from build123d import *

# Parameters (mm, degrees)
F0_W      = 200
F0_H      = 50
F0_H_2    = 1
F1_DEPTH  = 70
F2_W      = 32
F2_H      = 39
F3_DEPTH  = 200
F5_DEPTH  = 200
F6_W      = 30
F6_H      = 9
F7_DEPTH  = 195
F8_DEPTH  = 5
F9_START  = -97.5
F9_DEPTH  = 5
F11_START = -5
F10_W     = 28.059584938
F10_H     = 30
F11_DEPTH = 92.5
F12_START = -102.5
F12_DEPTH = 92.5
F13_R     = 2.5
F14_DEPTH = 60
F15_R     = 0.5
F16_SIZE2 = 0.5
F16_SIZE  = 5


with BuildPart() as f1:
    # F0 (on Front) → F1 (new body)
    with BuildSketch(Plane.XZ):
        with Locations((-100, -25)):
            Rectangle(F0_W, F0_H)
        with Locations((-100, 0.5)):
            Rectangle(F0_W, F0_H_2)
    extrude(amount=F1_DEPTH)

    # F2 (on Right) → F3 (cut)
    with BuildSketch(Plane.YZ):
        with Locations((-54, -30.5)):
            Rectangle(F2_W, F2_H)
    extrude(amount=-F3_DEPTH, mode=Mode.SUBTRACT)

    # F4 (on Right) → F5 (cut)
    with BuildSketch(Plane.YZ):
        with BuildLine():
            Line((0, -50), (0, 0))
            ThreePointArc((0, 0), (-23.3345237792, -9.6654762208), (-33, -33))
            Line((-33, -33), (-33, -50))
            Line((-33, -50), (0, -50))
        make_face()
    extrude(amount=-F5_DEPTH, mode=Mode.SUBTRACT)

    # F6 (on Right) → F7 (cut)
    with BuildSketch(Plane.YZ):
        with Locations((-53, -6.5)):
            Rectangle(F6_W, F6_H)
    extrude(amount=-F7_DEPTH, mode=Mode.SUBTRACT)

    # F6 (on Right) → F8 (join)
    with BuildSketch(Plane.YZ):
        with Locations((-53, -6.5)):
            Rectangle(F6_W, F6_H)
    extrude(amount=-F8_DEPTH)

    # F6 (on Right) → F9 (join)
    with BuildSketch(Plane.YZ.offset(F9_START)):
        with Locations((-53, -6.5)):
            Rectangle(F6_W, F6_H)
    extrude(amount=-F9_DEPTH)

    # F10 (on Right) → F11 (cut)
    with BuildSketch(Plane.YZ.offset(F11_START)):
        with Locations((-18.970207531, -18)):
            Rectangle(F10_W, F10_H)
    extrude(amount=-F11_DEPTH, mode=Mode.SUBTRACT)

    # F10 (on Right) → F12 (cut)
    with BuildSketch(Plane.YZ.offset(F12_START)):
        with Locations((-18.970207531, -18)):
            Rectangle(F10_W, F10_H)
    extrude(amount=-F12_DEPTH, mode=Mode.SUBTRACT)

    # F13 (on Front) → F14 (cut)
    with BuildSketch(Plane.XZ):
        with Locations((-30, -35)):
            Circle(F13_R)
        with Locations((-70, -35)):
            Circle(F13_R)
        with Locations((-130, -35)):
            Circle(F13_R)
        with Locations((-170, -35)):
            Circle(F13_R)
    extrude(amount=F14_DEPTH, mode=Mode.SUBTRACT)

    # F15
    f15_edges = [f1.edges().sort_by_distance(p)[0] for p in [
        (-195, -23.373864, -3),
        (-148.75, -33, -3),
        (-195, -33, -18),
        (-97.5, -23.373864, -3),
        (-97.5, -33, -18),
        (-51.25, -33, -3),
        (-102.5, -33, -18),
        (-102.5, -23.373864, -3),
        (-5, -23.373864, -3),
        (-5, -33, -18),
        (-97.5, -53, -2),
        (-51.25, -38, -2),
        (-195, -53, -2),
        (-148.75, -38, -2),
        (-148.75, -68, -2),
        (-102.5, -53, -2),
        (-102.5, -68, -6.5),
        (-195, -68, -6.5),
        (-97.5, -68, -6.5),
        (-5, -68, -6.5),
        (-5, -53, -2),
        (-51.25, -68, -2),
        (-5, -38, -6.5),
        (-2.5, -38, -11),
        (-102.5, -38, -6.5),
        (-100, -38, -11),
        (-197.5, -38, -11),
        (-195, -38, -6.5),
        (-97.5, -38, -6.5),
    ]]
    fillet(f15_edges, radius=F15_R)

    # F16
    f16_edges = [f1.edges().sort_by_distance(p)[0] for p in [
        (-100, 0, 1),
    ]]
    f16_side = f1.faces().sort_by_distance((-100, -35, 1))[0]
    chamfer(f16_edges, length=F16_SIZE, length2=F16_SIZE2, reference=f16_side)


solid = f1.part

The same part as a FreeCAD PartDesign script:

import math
import FreeCAD as App
import Part
import Sketcher
from FreeCAD import Vector


def edges_at(feature, points):
    """Names of the edges that pass closest to the given points."""
    edges = feature.Shape.Edges
    near = lambda p: min(range(len(edges)), key=lambda i: edges[i].distToShape(Part.Vertex(*p))[0])
    return sorted({f"Edge{near(p) + 1}" for p in points})

doc = App.newDocument("Part")
body = doc.addObject("PartDesign::Body", "Body")

sketch1 = body.newObject("Sketcher::SketchObject", "Sketch")
sketch1.AttachmentSupport = (doc.getObject("XZ_Plane"), [""])
sketch1.MapMode = "FlatFace"
sketch1.addGeometry(Part.LineSegment(Vector(-200, -50, 0), Vector(0, -50, 0)), False)
sketch1.addGeometry(Part.LineSegment(Vector(0, -50, 0), Vector(0, 1, 0)), False)
sketch1.addGeometry(Part.LineSegment(Vector(0, 1, 0), Vector(-200, 1, 0)), False)
sketch1.addGeometry(Part.LineSegment(Vector(-200, 1, 0), Vector(-200, -50, 0)), False)
sketch1.addConstraint(Sketcher.Constraint("Coincident", 0, 2, 1, 1))
sketch1.addConstraint(Sketcher.Constraint("Coincident", 1, 2, 2, 1))
sketch1.addConstraint(Sketcher.Constraint("Coincident", 2, 2, 3, 1))
sketch1.addConstraint(Sketcher.Constraint("Coincident", 3, 2, 0, 1))
sketch1.addConstraint(Sketcher.Constraint("Horizontal", 0))
sketch1.addConstraint(Sketcher.Constraint("Vertical", 1))
sketch1.addConstraint(Sketcher.Constraint("Horizontal", 2))
sketch1.addConstraint(Sketcher.Constraint("Vertical", 3))
sketch1.addConstraint(Sketcher.Constraint("PointOnObject", 0, 2, -2))
sketch1.addConstraint(Sketcher.Constraint("DistanceX", 0, 1, 0, 2, 200.0))
sketch1.addConstraint(Sketcher.Constraint("DistanceY", 1, 1, 1, 2, 51.0))
sketch1.addConstraint(Sketcher.Constraint("DistanceY", 0, 2, -1, 1, 50.0))
pad1 = body.newObject("PartDesign::Pad", "Pad")
pad1.Profile = sketch1
pad1.Length = 70

sketch2 = body.newObject("Sketcher::SketchObject", "Sketch001")
sketch2.AttachmentSupport = (doc.getObject("YZ_Plane"), [""])
sketch2.MapMode = "FlatFace"
sketch2.addGeometry(Part.LineSegment(Vector(-70, -11, 0), Vector(-70, -50, 0)), False)
sketch2.addGeometry(Part.LineSegment(Vector(-70, -50, 0), Vector(-38, -50, 0)), False)
sketch2.addGeometry(Part.LineSegment(Vector(-38, -50, 0), Vector(-38, -11, 0)), False)
sketch2.addGeometry(Part.LineSegment(Vector(-38, -11, 0), Vector(-70, -11, 0)), False)
sketch2.addConstraint(Sketcher.Constraint("Coincident", 0, 2, 1, 1))
sketch2.addConstraint(Sketcher.Constraint("Coincident", 1, 2, 2, 1))
sketch2.addConstraint(Sketcher.Constraint("Coincident", 2, 2, 3, 1))
sketch2.addConstraint(Sketcher.Constraint("Coincident", 3, 2, 0, 1))
sketch2.addConstraint(Sketcher.Constraint("Vertical", 0))
sketch2.addConstraint(Sketcher.Constraint("Horizontal", 1))
sketch2.addConstraint(Sketcher.Constraint("Vertical", 2))
sketch2.addConstraint(Sketcher.Constraint("Horizontal", 3))
sketch2.addConstraint(Sketcher.Constraint("DistanceX", 1, 1, 1, 2, 32.0))
sketch2.addConstraint(Sketcher.Constraint("DistanceY", 0, 2, 0, 1, 39.0))
sketch2.addConstraint(Sketcher.Constraint("DistanceX", 0, 2, -1, 1, 70.0))
sketch2.addConstraint(Sketcher.Constraint("DistanceY", 0, 2, -1, 1, 50.0))
pocket1 = body.newObject("PartDesign::Pocket", "Pocket")
pocket1.Profile = sketch2
pocket1.Length = 200

sketch3 = body.newObject("Sketcher::SketchObject", "Sketch002")
sketch3.AttachmentSupport = (doc.getObject("YZ_Plane"), [""])
sketch3.MapMode = "FlatFace"
sketch3.addGeometry(Part.LineSegment(Vector(0, -50, 0), Vector(0, 0, 0)), False)
sketch3.addGeometry(Part.ArcOfCircle(Part.Circle(Vector(0, -33, 0), Vector(0, 0, 1), 33), math.radians(90), math.radians(180)), False)
sketch3.addGeometry(Part.LineSegment(Vector(-33, -33, 0), Vector(-33, -50, 0)), False)
sketch3.addGeometry(Part.LineSegment(Vector(-33, -50, 0), Vector(0, -50, 0)), False)
sketch3.addConstraint(Sketcher.Constraint("Coincident", 0, 2, 1, 1))
sketch3.addConstraint(Sketcher.Constraint("Tangent", 1, 2, 2, 1))
sketch3.addConstraint(Sketcher.Constraint("Coincident", 2, 2, 3, 1))
sketch3.addConstraint(Sketcher.Constraint("Coincident", 3, 2, 0, 1))
sketch3.addConstraint(Sketcher.Constraint("Vertical", 0))
sketch3.addConstraint(Sketcher.Constraint("Vertical", 2))
sketch3.addConstraint(Sketcher.Constraint("Horizontal", 3))
sketch3.addConstraint(Sketcher.Constraint("Coincident", 0, 2, -1, 1))
sketch3.addConstraint(Sketcher.Constraint("PointOnObject", 1, 3, -2))
sketch3.addConstraint(Sketcher.Constraint("Radius", 1, 33.0))
sketch3.addConstraint(Sketcher.Constraint("DistanceY", 0, 1, 0, 2, 50.0))
pocket2 = body.newObject("PartDesign::Pocket", "Pocket001")
pocket2.Profile = sketch3
pocket2.Length = 200

sketch4 = body.newObject("Sketcher::SketchObject", "Sketch003")
sketch4.AttachmentSupport = (doc.getObject("YZ_Plane"), [""])
sketch4.MapMode = "FlatFace"
sketch4.addGeometry(Part.LineSegment(Vector(-68, -2, 0), Vector(-68, -11, 0)), False)
sketch4.addGeometry(Part.LineSegment(Vector(-68, -11, 0), Vector(-38, -11, 0)), False)
sketch4.addGeometry(Part.LineSegment(Vector(-38, -11, 0), Vector(-38, -2, 0)), False)
sketch4.addGeometry(Part.LineSegment(Vector(-38, -2, 0), Vector(-68, -2, 0)), False)
sketch4.addConstraint(Sketcher.Constraint("Coincident", 0, 2, 1, 1))
sketch4.addConstraint(Sketcher.Constraint("Coincident", 1, 2, 2, 1))
sketch4.addConstraint(Sketcher.Constraint("Coincident", 2, 2, 3, 1))
sketch4.addConstraint(Sketcher.Constraint("Coincident", 3, 2, 0, 1))
sketch4.addConstraint(Sketcher.Constraint("Vertical", 0))
sketch4.addConstraint(Sketcher.Constraint("Horizontal", 1))
sketch4.addConstraint(Sketcher.Constraint("Vertical", 2))
sketch4.addConstraint(Sketcher.Constraint("Horizontal", 3))
sketch4.addConstraint(Sketcher.Constraint("DistanceX", 1, 1, 1, 2, 30.0))
sketch4.addConstraint(Sketcher.Constraint("DistanceY", 0, 2, 0, 1, 9.0))
sketch4.addConstraint(Sketcher.Constraint("DistanceX", 0, 2, -1, 1, 68.0))
sketch4.addConstraint(Sketcher.Constraint("DistanceY", 0, 2, -1, 1, 11.0))
pocket3 = body.newObject("PartDesign::Pocket", "Pocket002")
pocket3.Profile = sketch4
pocket3.Length = 195

sketch5 = body.newObject("Sketcher::SketchObject", "Sketch004")
sketch5.AttachmentSupport = (doc.getObject("YZ_Plane"), [""])
sketch5.MapMode = "FlatFace"
sketch5.addGeometry(Part.LineSegment(Vector(-68, -2, 0), Vector(-68, -11, 0)), False)
sketch5.addGeometry(Part.LineSegment(Vector(-68, -11, 0), Vector(-38, -11, 0)), False)
sketch5.addGeometry(Part.LineSegment(Vector(-38, -11, 0), Vector(-38, -2, 0)), False)
sketch5.addGeometry(Part.LineSegment(Vector(-38, -2, 0), Vector(-68, -2, 0)), False)
sketch5.addConstraint(Sketcher.Constraint("Coincident", 0, 2, 1, 1))
sketch5.addConstraint(Sketcher.Constraint("Coincident", 1, 2, 2, 1))
sketch5.addConstraint(Sketcher.Constraint("Coincident", 2, 2, 3, 1))
sketch5.addConstraint(Sketcher.Constraint("Coincident", 3, 2, 0, 1))
sketch5.addConstraint(Sketcher.Constraint("Vertical", 0))
sketch5.addConstraint(Sketcher.Constraint("Horizontal", 1))
sketch5.addConstraint(Sketcher.Constraint("Vertical", 2))
sketch5.addConstraint(Sketcher.Constraint("Horizontal", 3))
sketch5.addConstraint(Sketcher.Constraint("DistanceX", 1, 1, 1, 2, 30.0))
sketch5.addConstraint(Sketcher.Constraint("DistanceY", 0, 2, 0, 1, 9.0))
sketch5.addConstraint(Sketcher.Constraint("DistanceX", 0, 2, -1, 1, 68.0))
sketch5.addConstraint(Sketcher.Constraint("DistanceY", 0, 2, -1, 1, 11.0))
pad2 = body.newObject("PartDesign::Pad", "Pad001")
pad2.Profile = sketch5
pad2.Length = 5
pad2.Reversed = True

sketch6 = body.newObject("Sketcher::SketchObject", "Sketch005")
sketch6.AttachmentSupport = (doc.getObject("YZ_Plane"), [""])
sketch6.MapMode = "FlatFace"
sketch6.AttachmentOffset = App.Placement(Vector(0, 0, -97.5), App.Rotation())
sketch6.addGeometry(Part.LineSegment(Vector(-68, -2, 0), Vector(-68, -11, 0)), False)
sketch6.addGeometry(Part.LineSegment(Vector(-68, -11, 0), Vector(-38, -11, 0)), False)
sketch6.addGeometry(Part.LineSegment(Vector(-38, -11, 0), Vector(-38, -2, 0)), False)
sketch6.addGeometry(Part.LineSegment(Vector(-38, -2, 0), Vector(-68, -2, 0)), False)
sketch6.addConstraint(Sketcher.Constraint("Coincident", 0, 2, 1, 1))
sketch6.addConstraint(Sketcher.Constraint("Coincident", 1, 2, 2, 1))
sketch6.addConstraint(Sketcher.Constraint("Coincident", 2, 2, 3, 1))
sketch6.addConstraint(Sketcher.Constraint("Coincident", 3, 2, 0, 1))
sketch6.addConstraint(Sketcher.Constraint("Vertical", 0))
sketch6.addConstraint(Sketcher.Constraint("Horizontal", 1))
sketch6.addConstraint(Sketcher.Constraint("Vertical", 2))
sketch6.addConstraint(Sketcher.Constraint("Horizontal", 3))
sketch6.addConstraint(Sketcher.Constraint("DistanceX", 1, 1, 1, 2, 30.0))
sketch6.addConstraint(Sketcher.Constraint("DistanceY", 0, 2, 0, 1, 9.0))
sketch6.addConstraint(Sketcher.Constraint("DistanceX", 0, 2, -1, 1, 68.0))
sketch6.addConstraint(Sketcher.Constraint("DistanceY", 0, 2, -1, 1, 11.0))
pad3 = body.newObject("PartDesign::Pad", "Pad002")
pad3.Profile = sketch6
pad3.Length = 5
pad3.Reversed = True

sketch7 = body.newObject("Sketcher::SketchObject", "Sketch006")
sketch7.AttachmentSupport = (doc.getObject("YZ_Plane"), [""])
sketch7.MapMode = "FlatFace"
sketch7.AttachmentOffset = App.Placement(Vector(0, 0, -5), App.Rotation())
sketch7.addGeometry(Part.LineSegment(Vector(-33, -3, 0), Vector(-33, -33, 0)), False)
sketch7.addGeometry(Part.LineSegment(Vector(-33, -33, 0), Vector(-5, -33, 0)), False)
sketch7.addGeometry(Part.LineSegment(Vector(-5, -33, 0), Vector(-5, -3, 0)), False)
sketch7.addGeometry(Part.LineSegment(Vector(-5, -3, 0), Vector(-33, -3, 0)), False)
sketch7.addConstraint(Sketcher.Constraint("Coincident", 0, 2, 1, 1))
sketch7.addConstraint(Sketcher.Constraint("Coincident", 1, 2, 2, 1))
sketch7.addConstraint(Sketcher.Constraint("Coincident", 2, 2, 3, 1))
sketch7.addConstraint(Sketcher.Constraint("Coincident", 3, 2, 0, 1))
sketch7.addConstraint(Sketcher.Constraint("Vertical", 0))
sketch7.addConstraint(Sketcher.Constraint("Horizontal", 1))
sketch7.addConstraint(Sketcher.Constraint("Vertical", 2))
sketch7.addConstraint(Sketcher.Constraint("Horizontal", 3))
sketch7.addConstraint(Sketcher.Constraint("DistanceY", 0, 2, 0, 1, 30.0))
sketch7.addConstraint(Sketcher.Constraint("DistanceX", 0, 2, -1, 1, 33.0))
sketch7.addConstraint(Sketcher.Constraint("DistanceY", 0, 2, -1, 1, 33.0))
sketch7.addConstraint(Sketcher.Constraint("DistanceX", 1, 1, 1, 2, 28.059585))
pocket4 = body.newObject("PartDesign::Pocket", "Pocket003")
pocket4.Profile = sketch7
pocket4.Length = 92.5

sketch8 = body.newObject("Sketcher::SketchObject", "Sketch007")
sketch8.AttachmentSupport = (doc.getObject("YZ_Plane"), [""])
sketch8.MapMode = "FlatFace"
sketch8.AttachmentOffset = App.Placement(Vector(0, 0, -102.5), App.Rotation())
sketch8.addGeometry(Part.LineSegment(Vector(-33, -3, 0), Vector(-33, -33, 0)), False)
sketch8.addGeometry(Part.LineSegment(Vector(-33, -33, 0), Vector(-5, -33, 0)), False)
sketch8.addGeometry(Part.LineSegment(Vector(-5, -33, 0), Vector(-5, -3, 0)), False)
sketch8.addGeometry(Part.LineSegment(Vector(-5, -3, 0), Vector(-33, -3, 0)), False)
sketch8.addConstraint(Sketcher.Constraint("Coincident", 0, 2, 1, 1))
sketch8.addConstraint(Sketcher.Constraint("Coincident", 1, 2, 2, 1))
sketch8.addConstraint(Sketcher.Constraint("Coincident", 2, 2, 3, 1))
sketch8.addConstraint(Sketcher.Constraint("Coincident", 3, 2, 0, 1))
sketch8.addConstraint(Sketcher.Constraint("Vertical", 0))
sketch8.addConstraint(Sketcher.Constraint("Horizontal", 1))
sketch8.addConstraint(Sketcher.Constraint("Vertical", 2))
sketch8.addConstraint(Sketcher.Constraint("Horizontal", 3))
sketch8.addConstraint(Sketcher.Constraint("DistanceY", 0, 2, 0, 1, 30.0))
sketch8.addConstraint(Sketcher.Constraint("DistanceX", 0, 2, -1, 1, 33.0))
sketch8.addConstraint(Sketcher.Constraint("DistanceY", 0, 2, -1, 1, 33.0))
sketch8.addConstraint(Sketcher.Constraint("DistanceX", 1, 1, 1, 2, 28.059585))
pocket5 = body.newObject("PartDesign::Pocket", "Pocket004")
pocket5.Profile = sketch8
pocket5.Length = 92.5

sketch9 = body.newObject("Sketcher::SketchObject", "Sketch008")
sketch9.AttachmentSupport = (doc.getObject("XZ_Plane"), [""])
sketch9.MapMode = "FlatFace"
sketch9.addGeometry(Part.Circle(Vector(-30, -35, 0), Vector(0, 0, 1), 2.5), False)
sketch9.addGeometry(Part.Circle(Vector(-70, -35, 0), Vector(0, 0, 1), 2.5), False)
sketch9.addGeometry(Part.Circle(Vector(-130, -35, 0), Vector(0, 0, 1), 2.5), False)
sketch9.addGeometry(Part.Circle(Vector(-170, -35, 0), Vector(0, 0, 1), 2.5), False)
sketch9.addConstraint(Sketcher.Constraint("Equal", 0, 1))
sketch9.addConstraint(Sketcher.Constraint("Equal", 1, 2))
sketch9.addConstraint(Sketcher.Constraint("Equal", 2, 3))
sketch9.addConstraint(Sketcher.Constraint("Horizontal", 0, 3, 1, 3))
sketch9.addConstraint(Sketcher.Constraint("Horizontal", 1, 3, 2, 3))
sketch9.addConstraint(Sketcher.Constraint("Horizontal", 2, 3, 3, 3))
sketch9.addConstraint(Sketcher.Constraint("Diameter", 0, 5.0))
sketch9.addConstraint(Sketcher.Constraint("DistanceX", 0, 3, -1, 1, 30.0))
sketch9.addConstraint(Sketcher.Constraint("DistanceY", 0, 3, -1, 1, 35.0))
sketch9.addConstraint(Sketcher.Constraint("DistanceX", 1, 3, -1, 1, 70.0))
sketch9.addConstraint(Sketcher.Constraint("DistanceX", 2, 3, -1, 1, 130.0))
sketch9.addConstraint(Sketcher.Constraint("DistanceX", 3, 3, -1, 1, 170.0))
pocket6 = body.newObject("PartDesign::Pocket", "Pocket005")
pocket6.Profile = sketch9
pocket6.Length = 60
pocket6.Reversed = True
doc.recompute()

fillet = body.newObject("PartDesign::Fillet", "Fillet")
fillet.Base = (pocket6, edges_at(pocket6, [
    (-195, -23.374, -3),
    (-148.75, -33, -3),
    (-195, -33, -18),
    (-97.5, -23.374, -3),
    (-97.5, -33, -18),
    (-51.25, -33, -3),
    (-102.5, -33, -18),
    (-102.5, -23.374, -3),
    (-5, -23.374, -3),
    (-5, -33, -18),
    (-97.5, -53, -2),
    (-51.25, -38, -2),
    (-195, -53, -2),
    (-148.75, -38, -2),
    (-148.75, -68, -2),
    (-102.5, -53, -2),
    (-102.5, -68, -6.5),
    (-195, -68, -6.5),
    (-97.5, -68, -6.5),
    (-5, -68, -6.5),
    (-5, -53, -2),
    (-51.25, -68, -2),
    (-5, -38, -6.5),
    (-2.5, -38, -11),
    (-102.5, -38, -6.5),
    (-100, -38, -11),
    (-197.5, -38, -11),
    (-195, -38, -6.5),
    (-97.5, -38, -6.5),
]))
fillet.Radius = 0.5
doc.recompute()

chamfer = body.newObject("PartDesign::Chamfer", "Chamfer")
chamfer.Base = (fillet, edges_at(fillet, [(-100, 0, 1)]))
chamfer.ChamferType = "Two distances"
chamfer.Size = 5
chamfer.Size2 = 0.5
chamfer.FlipDirection = True

doc.recompute()
